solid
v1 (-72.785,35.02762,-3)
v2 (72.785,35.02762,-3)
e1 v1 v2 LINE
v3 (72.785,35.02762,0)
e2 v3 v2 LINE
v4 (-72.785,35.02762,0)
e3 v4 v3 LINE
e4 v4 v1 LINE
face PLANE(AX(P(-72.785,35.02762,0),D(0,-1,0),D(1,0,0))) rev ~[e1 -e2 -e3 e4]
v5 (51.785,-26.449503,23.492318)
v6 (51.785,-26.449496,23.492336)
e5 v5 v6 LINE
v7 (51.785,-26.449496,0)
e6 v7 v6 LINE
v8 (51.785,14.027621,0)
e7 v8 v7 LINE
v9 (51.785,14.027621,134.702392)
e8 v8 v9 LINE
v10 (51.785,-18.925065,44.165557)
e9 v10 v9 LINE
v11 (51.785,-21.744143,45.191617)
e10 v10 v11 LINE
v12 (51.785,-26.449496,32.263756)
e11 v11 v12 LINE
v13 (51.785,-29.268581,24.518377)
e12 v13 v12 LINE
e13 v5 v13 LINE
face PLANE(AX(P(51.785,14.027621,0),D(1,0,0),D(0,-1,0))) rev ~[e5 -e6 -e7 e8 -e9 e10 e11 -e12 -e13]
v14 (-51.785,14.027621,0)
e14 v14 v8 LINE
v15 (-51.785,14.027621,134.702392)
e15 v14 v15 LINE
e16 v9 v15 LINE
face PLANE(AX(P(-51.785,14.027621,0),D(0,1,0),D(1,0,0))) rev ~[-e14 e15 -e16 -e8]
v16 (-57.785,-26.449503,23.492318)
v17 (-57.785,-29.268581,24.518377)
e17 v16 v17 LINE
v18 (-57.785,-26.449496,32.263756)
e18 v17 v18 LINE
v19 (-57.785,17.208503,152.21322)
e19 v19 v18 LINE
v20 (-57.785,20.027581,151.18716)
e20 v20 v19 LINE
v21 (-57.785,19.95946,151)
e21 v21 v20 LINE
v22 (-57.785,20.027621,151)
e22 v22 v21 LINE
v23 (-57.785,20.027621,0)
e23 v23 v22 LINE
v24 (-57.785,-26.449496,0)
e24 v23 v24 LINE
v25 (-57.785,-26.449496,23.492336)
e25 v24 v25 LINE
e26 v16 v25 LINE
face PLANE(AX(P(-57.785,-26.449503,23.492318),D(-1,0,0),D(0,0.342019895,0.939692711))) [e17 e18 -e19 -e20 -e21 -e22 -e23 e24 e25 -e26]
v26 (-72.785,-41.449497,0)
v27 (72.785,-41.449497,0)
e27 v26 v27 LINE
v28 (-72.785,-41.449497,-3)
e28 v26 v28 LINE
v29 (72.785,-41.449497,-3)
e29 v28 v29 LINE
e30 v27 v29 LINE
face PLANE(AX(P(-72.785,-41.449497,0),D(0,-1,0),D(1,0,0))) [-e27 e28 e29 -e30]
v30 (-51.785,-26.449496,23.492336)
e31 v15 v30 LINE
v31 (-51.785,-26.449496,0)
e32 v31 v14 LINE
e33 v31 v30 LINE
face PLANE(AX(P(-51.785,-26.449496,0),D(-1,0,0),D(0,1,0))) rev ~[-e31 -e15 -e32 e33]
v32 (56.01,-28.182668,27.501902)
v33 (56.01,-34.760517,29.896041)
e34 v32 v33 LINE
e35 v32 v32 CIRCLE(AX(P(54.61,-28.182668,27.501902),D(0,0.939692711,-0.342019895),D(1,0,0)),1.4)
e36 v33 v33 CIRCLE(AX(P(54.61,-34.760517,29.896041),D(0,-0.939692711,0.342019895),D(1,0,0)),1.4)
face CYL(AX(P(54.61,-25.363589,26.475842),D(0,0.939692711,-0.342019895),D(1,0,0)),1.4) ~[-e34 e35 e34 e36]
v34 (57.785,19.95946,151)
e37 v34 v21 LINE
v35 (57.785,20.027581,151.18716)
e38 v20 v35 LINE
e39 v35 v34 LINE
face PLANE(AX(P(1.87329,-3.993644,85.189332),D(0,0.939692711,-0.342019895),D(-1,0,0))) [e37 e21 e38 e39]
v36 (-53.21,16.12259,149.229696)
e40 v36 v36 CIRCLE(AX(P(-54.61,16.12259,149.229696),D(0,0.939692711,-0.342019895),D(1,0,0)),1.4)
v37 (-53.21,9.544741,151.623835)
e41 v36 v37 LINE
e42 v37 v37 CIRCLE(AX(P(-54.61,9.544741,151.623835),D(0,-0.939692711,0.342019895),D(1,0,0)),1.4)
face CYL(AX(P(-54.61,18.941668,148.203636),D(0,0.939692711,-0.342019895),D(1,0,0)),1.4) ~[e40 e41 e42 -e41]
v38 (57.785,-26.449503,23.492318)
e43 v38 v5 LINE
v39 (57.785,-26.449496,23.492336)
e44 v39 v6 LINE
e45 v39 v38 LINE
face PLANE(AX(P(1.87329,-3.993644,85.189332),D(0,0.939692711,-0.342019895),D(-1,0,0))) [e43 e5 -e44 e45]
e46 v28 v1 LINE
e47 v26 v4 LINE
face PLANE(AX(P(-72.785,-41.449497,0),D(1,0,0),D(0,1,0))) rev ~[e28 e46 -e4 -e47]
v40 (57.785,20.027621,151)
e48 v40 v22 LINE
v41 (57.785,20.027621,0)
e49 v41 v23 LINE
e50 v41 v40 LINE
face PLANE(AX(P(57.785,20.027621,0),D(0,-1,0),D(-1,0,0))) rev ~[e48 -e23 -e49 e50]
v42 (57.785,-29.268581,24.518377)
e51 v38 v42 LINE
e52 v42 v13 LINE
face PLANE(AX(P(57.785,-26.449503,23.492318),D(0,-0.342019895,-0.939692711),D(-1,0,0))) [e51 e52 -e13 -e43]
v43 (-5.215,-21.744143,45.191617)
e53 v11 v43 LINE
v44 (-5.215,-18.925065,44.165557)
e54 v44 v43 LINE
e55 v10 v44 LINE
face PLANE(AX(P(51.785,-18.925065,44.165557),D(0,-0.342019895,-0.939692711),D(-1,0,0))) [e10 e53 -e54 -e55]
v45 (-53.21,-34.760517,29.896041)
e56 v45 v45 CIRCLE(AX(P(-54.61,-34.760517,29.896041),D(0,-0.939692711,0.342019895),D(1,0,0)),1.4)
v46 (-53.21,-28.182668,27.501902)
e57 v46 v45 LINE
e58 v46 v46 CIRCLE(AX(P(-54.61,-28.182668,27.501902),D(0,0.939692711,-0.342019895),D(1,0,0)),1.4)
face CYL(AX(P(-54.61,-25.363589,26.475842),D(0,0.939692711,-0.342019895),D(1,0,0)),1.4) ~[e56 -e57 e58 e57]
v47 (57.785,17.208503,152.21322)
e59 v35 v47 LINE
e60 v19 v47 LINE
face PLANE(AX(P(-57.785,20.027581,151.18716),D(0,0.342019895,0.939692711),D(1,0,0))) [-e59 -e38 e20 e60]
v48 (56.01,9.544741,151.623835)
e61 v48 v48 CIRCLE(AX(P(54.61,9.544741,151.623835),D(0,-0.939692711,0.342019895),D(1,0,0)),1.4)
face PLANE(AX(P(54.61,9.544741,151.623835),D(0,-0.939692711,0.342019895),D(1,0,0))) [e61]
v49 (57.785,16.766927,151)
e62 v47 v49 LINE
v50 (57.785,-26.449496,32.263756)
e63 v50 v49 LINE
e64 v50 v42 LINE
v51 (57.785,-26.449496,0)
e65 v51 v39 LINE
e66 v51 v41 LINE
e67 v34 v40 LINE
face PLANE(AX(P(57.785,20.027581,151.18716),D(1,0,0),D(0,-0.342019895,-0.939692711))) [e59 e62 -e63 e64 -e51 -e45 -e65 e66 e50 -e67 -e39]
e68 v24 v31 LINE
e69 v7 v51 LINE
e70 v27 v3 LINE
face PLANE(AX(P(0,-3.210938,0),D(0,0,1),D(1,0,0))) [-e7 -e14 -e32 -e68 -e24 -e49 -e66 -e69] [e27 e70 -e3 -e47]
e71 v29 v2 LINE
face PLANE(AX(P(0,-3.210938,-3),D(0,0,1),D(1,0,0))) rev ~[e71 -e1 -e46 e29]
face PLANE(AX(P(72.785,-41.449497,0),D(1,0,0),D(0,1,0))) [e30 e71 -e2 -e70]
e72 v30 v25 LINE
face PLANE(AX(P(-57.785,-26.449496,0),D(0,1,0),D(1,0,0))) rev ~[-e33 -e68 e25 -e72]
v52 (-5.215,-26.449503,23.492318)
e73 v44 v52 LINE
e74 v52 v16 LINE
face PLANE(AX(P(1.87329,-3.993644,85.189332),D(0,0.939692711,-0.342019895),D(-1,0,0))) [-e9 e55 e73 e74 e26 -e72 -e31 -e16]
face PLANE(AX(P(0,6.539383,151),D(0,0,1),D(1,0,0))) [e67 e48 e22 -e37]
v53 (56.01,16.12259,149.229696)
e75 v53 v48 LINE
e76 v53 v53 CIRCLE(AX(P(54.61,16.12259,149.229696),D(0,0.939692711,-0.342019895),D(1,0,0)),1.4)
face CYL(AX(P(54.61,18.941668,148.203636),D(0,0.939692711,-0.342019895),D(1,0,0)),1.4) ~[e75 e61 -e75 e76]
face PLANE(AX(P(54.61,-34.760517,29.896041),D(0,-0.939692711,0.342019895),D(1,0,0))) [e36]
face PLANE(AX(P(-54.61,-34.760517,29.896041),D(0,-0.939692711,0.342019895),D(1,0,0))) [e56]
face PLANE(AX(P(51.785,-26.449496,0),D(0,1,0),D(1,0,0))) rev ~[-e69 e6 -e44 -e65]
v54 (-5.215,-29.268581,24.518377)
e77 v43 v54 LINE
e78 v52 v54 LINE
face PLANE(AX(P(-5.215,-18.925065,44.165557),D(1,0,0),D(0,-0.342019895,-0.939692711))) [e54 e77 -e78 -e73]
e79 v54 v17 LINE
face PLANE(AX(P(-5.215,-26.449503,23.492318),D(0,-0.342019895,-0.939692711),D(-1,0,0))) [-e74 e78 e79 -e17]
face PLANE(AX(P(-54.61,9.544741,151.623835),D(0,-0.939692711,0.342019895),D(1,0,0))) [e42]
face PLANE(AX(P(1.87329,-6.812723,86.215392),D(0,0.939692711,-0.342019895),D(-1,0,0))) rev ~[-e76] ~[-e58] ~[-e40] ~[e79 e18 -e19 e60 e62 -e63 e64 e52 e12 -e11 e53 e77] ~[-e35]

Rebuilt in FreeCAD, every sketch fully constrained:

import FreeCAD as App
import Part
import Sketcher

V = App.Vector
Q = App.Units.Quantity


def add_polygon(sketch, points):
    """Adds a closed chain of lines whose ends are joined by coincident constraints."""
    first, n = sketch.GeometryCount, len(points)
    for a, b in zip(points, points[1:] + points[:1]):
        sketch.addGeometry(Part.LineSegment(App.Vector(*a, 0), App.Vector(*b, 0)), False)
    for i in range(n):
        sketch.addConstraint(Sketcher.Constraint("Coincident", first + i, 2, first + (i + 1) % n, 1))

doc = App.newDocument("Part")
body = doc.addObject("PartDesign::Body", "Body")

sketch1 = body.newObject("Sketcher::SketchObject", "Sketch")
sketch1.AttachmentSupport = (doc.getObject("XY_Plane"), [""])
sketch1.MapMode = "FlatFace"
add_polygon(sketch1, [(-72.785, 35.02762), (-72.785, -41.449497), (72.785, -41.449497), (72.785, 35.02762)])
sketch1.addConstraint([
    Sketcher.Constraint("Vertical", 0),
    Sketcher.Constraint("Horizontal", 1),
    Sketcher.Constraint("Vertical", 2),
    Sketcher.Constraint("Horizontal", 3),
    Sketcher.Constraint("DistanceX", 1, 1, 1, 2, Q("145.57 mm")),
    Sketcher.Constraint("DistanceX", 0, 2, -1, 1, Q("72.785 mm")),
    Sketcher.Constraint("DistanceY", 0, 2, 0, 1, Q("76.477117 mm")),
    Sketcher.Constraint("DistanceY", -1, 1, 2, 2, Q("35.02762 mm")),
])
pad1 = body.newObject("PartDesign::Pad", "Pad")
pad1.Profile = sketch1
pad1.Length = 3
pad1.Reversed = True

sketch2 = body.newObject("Sketcher::SketchObject", "Sketch001")
sketch2.AttachmentSupport = (doc.getObject("XY_Plane"), [""])
sketch2.MapMode = "FlatFace"
add_polygon(sketch2, [(51.785, -26.449496), (57.785, -26.449496), (57.785, 20.027621), (-57.785, 20.027621), (-57.785, -26.449496), (-51.785, -26.449496), (-51.785, 14.027621), (51.785, 14.027621)])
sketch2.addConstraint([
    Sketcher.Constraint("Horizontal", 0),
    Sketcher.Constraint("Vertical", 1),
    Sketcher.Constraint("Horizontal", 2),
    Sketcher.Constraint("Vertical", 3),
    Sketcher.Constraint("Horizontal", 4),
    Sketcher.Constraint("Vertical", 5),
    Sketcher.Constraint("Horizontal", 6),
    Sketcher.Constraint("Vertical", 7),
    Sketcher.Constraint("Symmetric", 0, 2, 3, 2, -2),
    Sketcher.Constraint("Equal", 0, 4),
    Sketcher.Constraint("DistanceX", 0, 1, 0, 2, Q("6 mm")),
    Sketcher.Constraint("DistanceY", 5, 2, 2, 2, Q("6 mm")),
    Sketcher.Constraint("DistanceX", 2, 2, 2, 1, Q("115.57 mm")),
    Sketcher.Constraint("DistanceY", 1, 1, 1, 2, Q("46.477117 mm")),
    Sketcher.Constraint("DistanceY", -1, 1, 1, 2, Q("20.027621 mm")),
])
pad2 = body.newObject("PartDesign::Pad", "Pad001")
pad2.Profile = sketch2
pad2.Length = 151

sketch3 = body.newObject("Sketcher::SketchObject", "Sketch002")
sketch3.Placement = App.Placement(V(0, -37.819078, 1.02606), App.Rotation(V(1, 0, 0), V(0, 0.342019895, 0.939692711), V(0, -0.939692711, 0.342019895), "ZXY"))
add_polygon(sketch3, [(-111.718933, 173.073643), (-111.718933, 0), (123.113281, 0), (123.113281, 173.073643)])
sketch3.addConstraint([
    Sketcher.Constraint("Vertical", 0),
    Sketcher.Constraint("Horizontal", 1),
    Sketcher.Constraint("Vertical", 2),
    Sketcher.Constraint("Horizontal", 3),
    Sketcher.Constraint("PointOnObject", 0, 2, -1),
    Sketcher.Constraint("DistanceX", 1, 1, 1, 2, Q("234.832214 mm")),
    Sketcher.Constraint("DistanceY", 0, 2, 0, 1, Q("173.073643 mm")),
    Sketcher.Constraint("DistanceX", -1, 1, 1, 2, Q("123.113281 mm")),
])
pocket1 = body.newObject("PartDesign::Pocket", "Pocket")
pocket1.Profile = sketch3
pocket1.Length = 200
pocket1.Reversed = True

sketch4 = body.newObject("Sketcher::SketchObject", "Sketch003")
sketch4.Placement = App.Placement(V(0, -35, 0), App.Rotation(V(1, 0, 0), V(0, 0.342019895, 0.939692711), V(0, -0.939692711, 0.342019895), "ZXY"))
add_polygon(sketch4, [(57.785, 160.89), (-57.785, 160.89), (-57.785, 25), (-5.215, 25), (-5.215, 47), (51.785, 47), (51.785, 25), (57.785, 25)])
sketch4.addConstraint([
    Sketcher.Constraint("Horizontal", 0),
    Sketcher.Constraint("Vertical", 1),
    Sketcher.Constraint("Horizontal", 2),
    Sketcher.Constraint("Vertical", 3),
    Sketcher.Constraint("Horizontal", 4),
    Sketcher.Constraint("Vertical", 5),
    Sketcher.Constraint("Horizontal", 6),
    Sketcher.Constraint("Vertical", 7),
    Sketcher.Constraint("Symmetric", 1, 2, 6, 2, -2),
    Sketcher.Constraint("DistanceX", 4, 1, 4, 2, Q("57 mm")),
    Sketcher.Constraint("DistanceX", 6, 1, 6, 2, Q("6 mm")),
    Sketcher.Constraint("DistanceY", 3, 1, 3, 2, Q("22 mm")),
    Sketcher.Constraint("DistanceY", -1, 1, 1, 2, Q("25 mm")),
    Sketcher.Constraint("DistanceX", 0, 2, 0, 1, Q("115.57 mm")),
    Sketcher.Constraint("DistanceY", 1, 2, 1, 1, Q("135.89 mm")),
])
pad3 = body.newObject("PartDesign::Pad", "Pad002")
pad3.Profile = sketch4
pad3.Length = 3

sketch5 = body.newObject("Sketcher::SketchObject", "Sketch004")
sketch5.Placement = App.Placement(V(0, -35, 0), App.Rotation(V(1, 0, 0), V(0, 0.342019895, 0.939692711), V(0, -0.939692711, 0.342019895), "ZXY"))
sketch5.addGeometry([
    Part.Circle(V(-54.61, 157.715, 0), V(0, 0, 1), 1.4),
    Part.Circle(V(54.61, 157.715, 0), V(0, 0, 1), 1.4),
    Part.Circle(V(54.61, 28.175, 0), V(0, 0, 1), 1.4),
    Part.Circle(V(-54.61, 28.175, 0), V(0, 0, 1), 1.4),
], False)
sketch5.addConstraint([
    Sketcher.Constraint("Equal", 0, 1),
    Sketcher.Constraint("Equal", 1, 2),
    Sketcher.Constraint("Equal", 2, 3),
    Sketcher.Constraint("Symmetric", 0, 3, 1, 3, -2),
    Sketcher.Constraint("Symmetric", 2, 3, 3, 3, -2),
    Sketcher.Constraint("Vertical", 1, 3, 2, 3),
    Sketcher.Constraint("Diameter", 0, Q("2.8 mm")),
    Sketcher.Constraint("DistanceX", 0, 3, -1, 1, Q("54.61 mm")),
    Sketcher.Constraint("DistanceY", 2, 3, 1, 3, Q("129.54 mm")),
    Sketcher.Constraint("DistanceY", -1, 1, 0, 3, Q("157.715 mm")),
])
pad4 = body.newObject("PartDesign::Pad", "Pad003")
pad4.Profile = sketch5
pad4.Length = 10

doc.recompute()
